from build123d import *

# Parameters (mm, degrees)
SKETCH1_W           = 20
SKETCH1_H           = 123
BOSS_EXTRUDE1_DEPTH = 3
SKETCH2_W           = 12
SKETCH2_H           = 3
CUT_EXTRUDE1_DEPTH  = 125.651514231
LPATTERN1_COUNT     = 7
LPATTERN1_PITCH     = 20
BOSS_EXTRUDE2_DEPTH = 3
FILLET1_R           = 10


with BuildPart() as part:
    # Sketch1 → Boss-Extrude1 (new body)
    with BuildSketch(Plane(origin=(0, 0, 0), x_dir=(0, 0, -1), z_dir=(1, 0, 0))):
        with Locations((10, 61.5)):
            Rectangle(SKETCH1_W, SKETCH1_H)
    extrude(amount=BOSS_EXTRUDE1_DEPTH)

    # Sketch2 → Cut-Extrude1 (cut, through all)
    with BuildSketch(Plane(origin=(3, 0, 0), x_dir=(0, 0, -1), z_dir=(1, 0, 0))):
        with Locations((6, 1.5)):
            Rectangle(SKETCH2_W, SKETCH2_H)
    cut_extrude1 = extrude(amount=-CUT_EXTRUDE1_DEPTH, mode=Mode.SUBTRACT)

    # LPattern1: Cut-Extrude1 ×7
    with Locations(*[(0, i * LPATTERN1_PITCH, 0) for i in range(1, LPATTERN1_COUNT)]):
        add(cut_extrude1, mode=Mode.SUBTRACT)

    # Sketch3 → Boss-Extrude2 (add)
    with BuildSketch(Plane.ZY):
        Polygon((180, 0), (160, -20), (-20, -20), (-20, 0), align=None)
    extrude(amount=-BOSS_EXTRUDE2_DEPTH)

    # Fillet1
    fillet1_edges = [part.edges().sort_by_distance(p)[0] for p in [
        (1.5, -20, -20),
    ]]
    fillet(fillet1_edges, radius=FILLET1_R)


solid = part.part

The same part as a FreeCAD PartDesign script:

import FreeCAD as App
import Part
import Sketcher

V = App.Vector


def edges_at(feature, points):
    """Names of the edges that pass closest to the given points."""
    edges = feature.Shape.Edges
    near = lambda p: min(range(len(edges)), key=lambda i: edges[i].distToShape(Part.Vertex(*p))[0])
    return sorted({f"Edge{near(p) + 1}" for p in points})


def add_polygon(sketch, points):
    """Adds a closed chain of lines whose ends are joined by coincident constraints."""
    first, n = sketch.GeometryCount, len(points)
    for a, b in zip(points, points[1:] + points[:1]):
        sketch.addGeometry(Part.LineSegment(App.Vector(*a, 0), App.Vector(*b, 0)), False)
    for i in range(n):
        sketch.addConstraint(Sketcher.Constraint("Coincident", first + i, 2, first + (i + 1) % n, 1))

doc = App.newDocument("Part")
params = doc.addObject("Spreadsheet::Sheet", "Params")
for row, (alias, value) in enumerate([
    ("sketch1_width", "123 mm"),
    ("sketch1_height", "20 mm"),
    ("pad1_length", "3 mm"),
    ("sketch2_width", "3 mm"),
    ("sketch2_height", "12 mm"),
    ("linearpattern_pitch", "20 mm"),
    ("sketch3_width", "20 mm"),
    ("sketch3_height", "200 mm"),
    ("sketch3_height2", "180 mm"),
    ("pad2_length", "3 mm"),
    ("fillet_radius", "10 mm"),
], start=1):
    params.set(f"A{row}", alias)
    params.set(f"B{row}", "=" + value)
    params.setAlias(f"B{row}", alias)

body = doc.addObject("PartDesign::Body", "Body")

# Sketch on YZ plane
sketch1 = body.newObject("Sketcher::SketchObject", "Sketch")
sketch1.AttachmentSupport = (doc.getObject("YZ_Plane"), [""])
sketch1.MapMode = "FlatFace"
add_polygon(sketch1, [(123, 0), (0, 0), (0, -20), (123, -20)])  # lines 0-3
sketch1.addConstraint([
    Sketcher.Constraint("Horizontal", 0),
    Sketcher.Constraint("Vertical", 1),
    Sketcher.Constraint("Horizontal", 2),
    Sketcher.Constraint("Vertical", 3),
    Sketcher.Constraint("Coincident", 0, 2, -1, 1),
    Sketcher.Constraint("DistanceX", 0, 2, 0, 1, 123.0),
    Sketcher.Constraint("DistanceY", 1, 2, 1, 1, 20.0),
])
sketch1.setExpression("Constraints[9]", "Params.sketch1_width")
sketch1.setExpression("Constraints[10]", "Params.sketch1_height")
pad1 = body.newObject("PartDesign::Pad", "Pad")
pad1.Profile = sketch1
pad1.setExpression("Length", "Params.pad1_length")

# Sketch on YZ plane
sketch2 = body.newObject("Sketcher::SketchObject", "Sketch001")
sketch2.AttachmentSupport = (doc.getObject("YZ_Plane"), [""])
sketch2.MapMode = "FlatFace"
sketch2.AttachmentOffset = App.Placement(V(0, 0, 3), App.Rotation())
add_polygon(sketch2, [(3, 0), (0, 0), (0, -12), (3, -12)])  # lines 0-3
sketch2.addConstraint([
    Sketcher.Constraint("Horizontal", 0),
    Sketcher.Constraint("Vertical", 1),
    Sketcher.Constraint("Horizontal", 2),
    Sketcher.Constraint("Vertical", 3),
    Sketcher.Constraint("Coincident", 0, 2, -1, 1),
    Sketcher.Constraint("DistanceX", 0, 2, 0, 1, 3.0),
    Sketcher.Constraint("DistanceY", 1, 2, 1, 1, 12.0),
])
sketch2.setExpression("Constraints[9]", "Params.sketch2_width")
sketch2.setExpression("Constraints[10]", "Params.sketch2_height")
pocket1 = body.newObject("PartDesign::Pocket", "Pocket")
pocket1.Profile = sketch2
pocket1.Type = "ThroughAll"
doc.recompute()

linearpattern = body.newObject("PartDesign::LinearPattern", "LinearPattern")
linearpattern.Originals = [pocket1]
linearpattern.Direction = (doc.getObject("Y_Axis"), [""])
linearpattern.Mode = "offset"
linearpattern.setExpression("Offset", "Params.linearpattern_pitch")
linearpattern.Occurrences = 7
body.Tip = linearpattern

# Sketch on YZ plane
sketch3 = body.newObject("Sketcher::SketchObject", "Sketch002")
sketch3.AttachmentSupport = (doc.getObject("YZ_Plane"), [""])
sketch3.MapMode = "FlatFace"
add_polygon(sketch3, [(-20, 160), (0, 180), (0, -20), (-20, -20)])  # lines 0-3
sketch3.addConstraint([
    Sketcher.Constraint("Vertical", 1),
    Sketcher.Constraint("Horizontal", 2),
    Sketcher.Constraint("Vertical", 3),
    Sketcher.Constraint("PointOnObject", 0, 2, -2),
    Sketcher.Constraint("DistanceX", 2, 2, 2, 1, 20.0),
    Sketcher.Constraint("DistanceY", 1, 2, 1, 1, 200.0),
    Sketcher.Constraint("DistanceY", 3, 1, 3, 2, 180.0),
    Sketcher.Constraint("DistanceY", -1, 1, 0, 2, 180.0),
])
sketch3.setExpression("Constraints[8]", "Params.sketch3_width")
sketch3.setExpression("Constraints[9]", "Params.sketch3_height")
sketch3.setExpression("Constraints[10]", "Params.sketch3_height2")
pad2 = body.newObject("PartDesign::Pad", "Pad001")
pad2.Profile = sketch3
pad2.setExpression("Length", "Params.pad2_length")
doc.recompute()

fillet = body.newObject("PartDesign::Fillet", "Fillet")
fillet.Base = (pad2, edges_at(pad2, [(1.5, -20, -20)]))
fillet.setExpression("Radius", "Params.fillet_radius")

doc.recompute()
